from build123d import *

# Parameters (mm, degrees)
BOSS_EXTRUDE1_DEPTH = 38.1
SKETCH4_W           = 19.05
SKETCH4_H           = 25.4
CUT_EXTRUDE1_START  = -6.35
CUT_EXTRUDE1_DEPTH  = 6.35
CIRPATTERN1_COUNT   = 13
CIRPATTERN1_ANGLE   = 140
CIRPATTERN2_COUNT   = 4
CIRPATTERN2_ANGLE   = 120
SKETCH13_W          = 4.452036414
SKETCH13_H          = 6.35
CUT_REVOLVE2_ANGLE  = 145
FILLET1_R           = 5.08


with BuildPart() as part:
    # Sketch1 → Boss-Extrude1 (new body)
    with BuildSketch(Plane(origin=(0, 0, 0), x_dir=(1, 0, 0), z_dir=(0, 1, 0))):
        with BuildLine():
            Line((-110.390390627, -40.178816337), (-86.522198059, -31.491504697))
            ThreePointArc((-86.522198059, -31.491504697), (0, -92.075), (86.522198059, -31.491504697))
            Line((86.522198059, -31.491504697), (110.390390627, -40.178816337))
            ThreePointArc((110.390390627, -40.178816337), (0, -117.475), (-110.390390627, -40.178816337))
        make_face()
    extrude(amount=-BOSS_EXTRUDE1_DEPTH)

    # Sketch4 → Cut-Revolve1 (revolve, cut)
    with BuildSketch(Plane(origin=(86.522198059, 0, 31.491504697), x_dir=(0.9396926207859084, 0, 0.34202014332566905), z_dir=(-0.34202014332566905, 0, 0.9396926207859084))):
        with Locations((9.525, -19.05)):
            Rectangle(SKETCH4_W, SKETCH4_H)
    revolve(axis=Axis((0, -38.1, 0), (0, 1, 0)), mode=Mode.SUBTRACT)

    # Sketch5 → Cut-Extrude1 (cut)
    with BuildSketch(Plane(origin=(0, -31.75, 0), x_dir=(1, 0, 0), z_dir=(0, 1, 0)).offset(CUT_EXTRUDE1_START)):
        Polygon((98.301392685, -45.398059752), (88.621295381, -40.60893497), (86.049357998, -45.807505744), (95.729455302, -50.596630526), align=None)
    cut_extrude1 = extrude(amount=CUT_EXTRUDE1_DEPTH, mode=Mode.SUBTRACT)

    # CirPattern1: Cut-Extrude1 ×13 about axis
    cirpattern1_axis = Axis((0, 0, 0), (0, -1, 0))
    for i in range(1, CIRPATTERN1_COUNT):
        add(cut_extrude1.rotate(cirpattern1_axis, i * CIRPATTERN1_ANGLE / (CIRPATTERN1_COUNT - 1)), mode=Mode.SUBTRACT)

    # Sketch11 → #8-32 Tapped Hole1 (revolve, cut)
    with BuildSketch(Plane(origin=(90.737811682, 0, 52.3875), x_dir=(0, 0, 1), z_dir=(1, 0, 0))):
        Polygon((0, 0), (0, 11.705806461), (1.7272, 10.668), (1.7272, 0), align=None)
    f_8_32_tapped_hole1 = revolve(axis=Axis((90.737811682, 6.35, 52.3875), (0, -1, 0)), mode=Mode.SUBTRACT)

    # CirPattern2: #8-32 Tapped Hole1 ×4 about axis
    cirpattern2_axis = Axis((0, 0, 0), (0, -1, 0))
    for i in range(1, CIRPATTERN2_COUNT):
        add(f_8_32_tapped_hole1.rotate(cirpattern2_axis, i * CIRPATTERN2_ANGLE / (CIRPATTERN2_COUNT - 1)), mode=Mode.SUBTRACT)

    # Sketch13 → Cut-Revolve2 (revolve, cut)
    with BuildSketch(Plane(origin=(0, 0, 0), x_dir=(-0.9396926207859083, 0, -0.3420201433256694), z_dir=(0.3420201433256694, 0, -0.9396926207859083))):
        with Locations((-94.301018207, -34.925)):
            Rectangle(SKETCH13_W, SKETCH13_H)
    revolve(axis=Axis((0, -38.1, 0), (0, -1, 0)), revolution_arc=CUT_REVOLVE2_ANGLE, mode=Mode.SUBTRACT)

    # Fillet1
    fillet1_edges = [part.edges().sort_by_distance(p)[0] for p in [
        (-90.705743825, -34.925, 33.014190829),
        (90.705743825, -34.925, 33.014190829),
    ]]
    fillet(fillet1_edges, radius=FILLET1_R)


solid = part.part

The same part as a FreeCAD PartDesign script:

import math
import FreeCAD as App
import Part
import Sketcher
from FreeCAD import Vector
Q = App.Units.Quantity


def edges_at(feature, points):
    """Names of the edges that pass closest to the given points."""
    edges = feature.Shape.Edges
    near = lambda p: min(range(len(edges)), key=lambda i: edges[i].distToShape(Part.Vertex(*p))[0])
    return sorted({f"Edge{near(p) + 1}" for p in points})

doc = App.newDocument("Part")
body = doc.addObject("PartDesign::Body", "Body")

# Sketch on XZ plane
sketch1 = body.newObject("Sketcher::SketchObject", "Sketch")
sketch1.AttachmentSupport = (doc.getObject("XZ_Plane"), [""])
sketch1.MapMode = "FlatFace"
sketch1.addGeometry(Part.LineSegment(Vector(-87, 31, 0), Vector(-110, 40, 0)), False)
sketch1.addGeometry(Part.ArcOfCircle(Part.Circle(Vector(0, 0, 0), Vector(0, 0, 1), 117), math.radians(20), math.radians(160)), False)
sketch1.addGeometry(Part.LineSegment(Vector(110, 40, 0), Vector(87, 31, 0)), False)
sketch1.addGeometry(Part.ArcOfCircle(Part.Circle(Vector(0, 0, 0), Vector(0, 0, 1), 92), math.radians(20), math.radians(160)), False)
sketch1.addConstraint(Sketcher.Constraint("Coincident", 0, 2, 1, 2))
sketch1.addConstraint(Sketcher.Constraint("Coincident", 1, 1, 2, 1))
sketch1.addConstraint(Sketcher.Constraint("Coincident", 2, 2, 3, 1))
sketch1.addConstraint(Sketcher.Constraint("Coincident", 3, 2, 0, 1))
sketch1.addConstraint(Sketcher.Constraint("Coincident", 1, 3, -1, 1))
sketch1.addConstraint(Sketcher.Constraint("Coincident", 3, 3, -1, 1))
sketch1.addConstraint(Sketcher.Constraint("Horizontal", 0, 2, 1, 1))
sketch1.addConstraint(Sketcher.Constraint("Horizontal", 2, 2, 3, 2))
sketch1.addConstraint(Sketcher.Constraint("Distance", 0, Q("1 in")))
sketch1.addConstraint(Sketcher.Constraint("Angle", 0, Q("160 deg")))
sketch1.addConstraint(Sketcher.Constraint("Radius", 1, Q("4.625 in")))
sketch1.addConstraint(Sketcher.Constraint("DistanceX", -1, 1, 2, 2, Q("86.522198 mm")))
pad1 = body.newObject("PartDesign::Pad", "Pad")
pad1.Profile = sketch1
pad1.Length = Q("1.5 in")

# Sketch on an angled plane
sketch2 = body.newObject("Sketcher::SketchObject", "Sketch001")
sketch2.Placement = App.Placement(Vector(86.522198, 0, 31.491505), App.Rotation(Vector(0.939692621, 0, 0.342020143), Vector(0, 1, 0), Vector(-0.342020143, 0, 0.939692621), "ZXY"))
sketch2.addGeometry(Part.LineSegment(Vector(0, -6, 0), Vector(0, -32, 0)), False)
sketch2.addGeometry(Part.LineSegment(Vector(0, -32, 0), Vector(19, -32, 0)), False)
sketch2.addGeometry(Part.LineSegment(Vector(19, -32, 0), Vector(19, -6, 0)), False)
sketch2.addGeometry(Part.LineSegment(Vector(19, -6, 0), Vector(0, -6, 0)), False)
sketch2.addGeometry(Part.LineSegment(Vector(-92, -32, 0), Vector(-92, -6, 0)), True)  # axis
sketch2.addConstraint(Sketcher.Constraint("Coincident", 0, 2, 1, 1))
sketch2.addConstraint(Sketcher.Constraint("Coincident", 1, 2, 2, 1))
sketch2.addConstraint(Sketcher.Constraint("Coincident", 2, 2, 3, 1))
sketch2.addConstraint(Sketcher.Constraint("Coincident", 3, 2, 0, 1))
sketch2.addConstraint(Sketcher.Constraint("Vertical", 0))
sketch2.addConstraint(Sketcher.Constraint("Horizontal", 1))
sketch2.addConstraint(Sketcher.Constraint("Vertical", 2))
sketch2.addConstraint(Sketcher.Constraint("Horizontal", 3))
sketch2.addConstraint(Sketcher.Constraint("Vertical", 4))
sketch2.addConstraint(Sketcher.Constraint("PointOnObject", 0, 2, -2))
sketch2.addConstraint(Sketcher.Constraint("Horizontal", 1, 2, 4, 1))
sketch2.addConstraint(Sketcher.Constraint("Horizontal", 3, 2, 4, 2))
sketch2.addConstraint(Sketcher.Constraint("DistanceY", 0, 2, 0, 1, Q("1 in")))
sketch2.addConstraint(Sketcher.Constraint("DistanceX", 1, 1, 1, 2, Q("0.75 in")))
sketch2.addConstraint(Sketcher.Constraint("DistanceY", 0, 2, -1, 1, Q("1.25 in")))
sketch2.addConstraint(Sketcher.Constraint("DistanceX", 4, 1, -1, 1, Q("3.625 in")))
groove = body.newObject("PartDesign::Groove", "Groove")
groove.Profile = sketch2
groove.ReferenceAxis = (sketch2, ["Axis0"])
groove.Angle = 360

# Sketch on XZ plane
sketch3 = body.newObject("Sketcher::SketchObject", "Sketch002")
sketch3.AttachmentSupport = (doc.getObject("XZ_Plane"), [""])
sketch3.MapMode = "FlatFace"
sketch3.AttachmentOffset = App.Placement(Vector(0, 0, 1.5 * 25.4), App.Rotation())
sketch3.addGeometry(Part.LineSegment(Vector(98, 45, 0), Vector(89, 41, 0)), False)
sketch3.addGeometry(Part.LineSegment(Vector(89, 41, 0), Vector(86, 46, 0)), False)
sketch3.addGeometry(Part.LineSegment(Vector(86, 46, 0), Vector(96, 51, 0)), False)
sketch3.addGeometry(Part.LineSegment(Vector(96, 51, 0), Vector(98, 45, 0)), False)
sketch3.addConstraint(Sketcher.Constraint("Coincident", 0, 2, 1, 1))
sketch3.addConstraint(Sketcher.Constraint("Coincident", 1, 2, 2, 1))
sketch3.addConstraint(Sketcher.Constraint("Coincident", 2, 2, 3, 1))
sketch3.addConstraint(Sketcher.Constraint("Coincident", 3, 2, 0, 1))
sketch3.addConstraint(Sketcher.Constraint("Perpendicular", 0, 1))
sketch3.addConstraint(Sketcher.Constraint("Perpendicular", 1, 2))
sketch3.addConstraint(Sketcher.Constraint("Perpendicular", 2, 3))
sketch3.addConstraint(Sketcher.Constraint("Distance", 0, Q("10.8 mm")))
sketch3.addConstraint(Sketcher.Constraint("Distance", 1, Q("5.8 mm")))
sketch3.addConstraint(Sketcher.Constraint("DistanceY", -1, 1, 2, 2, Q("50.596631 mm")))
sketch3.addConstraint(Sketcher.Constraint("DistanceY", -1, 1, 3, 2, Q("45.39806 mm")))
sketch3.addConstraint(Sketcher.Constraint("DistanceX", -1, 1, 0, 2, Q("88.621295 mm")))
pocket1 = body.newObject("PartDesign::Pocket", "Pocket")
pocket1.Profile = sketch3
pocket1.Length = Q("0.25 in")
doc.recompute()

polarpattern = body.newObject("PartDesign::PolarPattern", "PolarPattern")
polarpattern.Originals = [pocket1]
polarpattern.Axis = (doc.getObject("Y_Axis"), [""])
polarpattern.Angle = 140
polarpattern.Occurrences = 13
polarpattern.Reversed = True
body.Tip = polarpattern

# Sketch on YZ plane
sketch4 = body.newObject("Sketcher::SketchObject", "Sketch003")
sketch4.AttachmentSupport = (doc.getObject("YZ_Plane"), [""])
sketch4.MapMode = "FlatFace"
sketch4.AttachmentOffset = App.Placement(Vector(0, 0, 90.737812), App.Rotation())
sketch4.addGeometry(Part.LineSegment(Vector(-11.7, 52.4, 0), Vector(0, 52.4, 0)), False)
sketch4.addGeometry(Part.LineSegment(Vector(0, 52.4, 0), Vector(0, 54.1, 0)), False)
sketch4.addGeometry(Part.LineSegment(Vector(0, 54.1, 0), Vector(-10.7, 54.1, 0)), False)
sketch4.addGeometry(Part.LineSegment(Vector(-10.7, 54.1, 0), Vector(-11.7, 52.4, 0)), False)
sketch4.addGeometry(Part.LineSegment(Vector(0, 52.4, 0), Vector(-11.7, 52.4, 0)), True)  # axis
sketch4.addConstraint(Sketcher.Constraint("Coincident", 0, 2, 1, 1))
sketch4.addConstraint(Sketcher.Constraint("Coincident", 1, 2, 2, 1))
sketch4.addConstraint(Sketcher.Constraint("Coincident", 2, 2, 3, 1))
sketch4.addConstraint(Sketcher.Constraint("Coincident", 3, 2, 0, 1))
sketch4.addConstraint(Sketcher.Constraint("Horizontal", 0))
sketch4.addConstraint(Sketcher.Constraint("Vertical", 1))
sketch4.addConstraint(Sketcher.Constraint("Horizontal", 2))
sketch4.addConstraint(Sketcher.Constraint("Horizontal", 4))
sketch4.addConstraint(Sketcher.Constraint("Coincident", 4, 1, 0, 2))
sketch4.addConstraint(Sketcher.Constraint("PointOnObject", 0, 2, -2))
sketch4.addConstraint(Sketcher.Constraint("Equal", 0, 4))
sketch4.addConstraint(Sketcher.Constraint("Angle", 3, Q("-121 deg")))
sketch4.addConstraint(Sketcher.Constraint("DistanceX", 2, 2, 2, 1, Q("0.42 in")))
sketch4.addConstraint(Sketcher.Constraint("DistanceY", 1, 1, 1, 2, Q("0.068 in")))
sketch4.addConstraint(Sketcher.Constraint("DistanceY", -1, 1, 0, 2, Q("2.0625 in")))
groove2 = body.newObject("PartDesign::Groove", "Groove001")
groove2.Profile = sketch4
groove2.ReferenceAxis = (sketch4, ["Axis0"])
groove2.Angle = 360
doc.recompute()

polarpattern2 = body.newObject("PartDesign::PolarPattern", "PolarPattern001")
polarpattern2.Originals = [groove2]
polarpattern2.Axis = (doc.getObject("Y_Axis"), [""])
polarpattern2.Angle = 120
polarpattern2.Occurrences = 4
polarpattern2.Reversed = True
body.Tip = polarpattern2

# Sketch on an angled plane
sketch5 = body.newObject("Sketcher::SketchObject", "Sketch004")
sketch5.Placement = App.Placement(Vector(0, 0, 0), App.Rotation(Vector(-0.939692621, 0, -0.342020143), Vector(0, 1, 0), Vector(0.342020143, 0, -0.939692621), "ZXY"))
sketch5.addGeometry(Part.LineSegment(Vector(-96.5, -31.8, 0), Vector(-96.5, -38.1, 0)), False)
sketch5.addGeometry(Part.LineSegment(Vector(-96.5, -38.1, 0), Vector(-92.1, -38.1, 0)), False)
sketch5.addGeometry(Part.LineSegment(Vector(-92.1, -38.1, 0), Vector(-92.1, -31.8, 0)), False)
sketch5.addGeometry(Part.LineSegment(Vector(-92.1, -31.8, 0), Vector(-96.5, -31.8, 0)), False)
sketch5.addConstraint(Sketcher.Constraint("Coincident", 0, 2, 1, 1))
sketch5.addConstraint(Sketcher.Constraint("Coincident", 1, 2, 2, 1))
sketch5.addConstraint(Sketcher.Constraint("Coincident", 2, 2, 3, 1))
sketch5.addConstraint(Sketcher.Constraint("Coincident", 3, 2, 0, 1))
sketch5.addConstraint(Sketcher.Constraint("Vertical", 0))
sketch5.addConstraint(Sketcher.Constraint("Horizontal", 1))
sketch5.addConstraint(Sketcher.Constraint("Vertical", 2))
sketch5.addConstraint(Sketcher.Constraint("Horizontal", 3))
sketch5.addConstraint(Sketcher.Constraint("DistanceY", 0, 2, 0, 1, Q("0.25 in")))
sketch5.addConstraint(Sketcher.Constraint("DistanceY", 0, 2, -1, 1, Q("1.5 in")))
sketch5.addConstraint(Sketcher.Constraint("DistanceX", 1, 2, -1, 1, Q("3.625 in")))
sketch5.addConstraint(Sketcher.Constraint("DistanceX", 1, 1, 1, 2, Q("4.452036 mm")))
groove3 = body.newObject("PartDesign::Groove", "Groove002")
groove3.Profile = sketch5
groove3.ReferenceAxis = (sketch5, ["V_Axis"])
groove3.Angle = 145
groove3.Reversed = True
doc.recompute()

fillet = body.newObject("PartDesign::Fillet", "Fillet")
fillet.Base = (groove3, edges_at(groove3, [(-90.706, -34.925, 33.014), (90.706, -34.925, 33.014)]))
fillet.Radius = Q("0.2 in")

doc.recompute()
